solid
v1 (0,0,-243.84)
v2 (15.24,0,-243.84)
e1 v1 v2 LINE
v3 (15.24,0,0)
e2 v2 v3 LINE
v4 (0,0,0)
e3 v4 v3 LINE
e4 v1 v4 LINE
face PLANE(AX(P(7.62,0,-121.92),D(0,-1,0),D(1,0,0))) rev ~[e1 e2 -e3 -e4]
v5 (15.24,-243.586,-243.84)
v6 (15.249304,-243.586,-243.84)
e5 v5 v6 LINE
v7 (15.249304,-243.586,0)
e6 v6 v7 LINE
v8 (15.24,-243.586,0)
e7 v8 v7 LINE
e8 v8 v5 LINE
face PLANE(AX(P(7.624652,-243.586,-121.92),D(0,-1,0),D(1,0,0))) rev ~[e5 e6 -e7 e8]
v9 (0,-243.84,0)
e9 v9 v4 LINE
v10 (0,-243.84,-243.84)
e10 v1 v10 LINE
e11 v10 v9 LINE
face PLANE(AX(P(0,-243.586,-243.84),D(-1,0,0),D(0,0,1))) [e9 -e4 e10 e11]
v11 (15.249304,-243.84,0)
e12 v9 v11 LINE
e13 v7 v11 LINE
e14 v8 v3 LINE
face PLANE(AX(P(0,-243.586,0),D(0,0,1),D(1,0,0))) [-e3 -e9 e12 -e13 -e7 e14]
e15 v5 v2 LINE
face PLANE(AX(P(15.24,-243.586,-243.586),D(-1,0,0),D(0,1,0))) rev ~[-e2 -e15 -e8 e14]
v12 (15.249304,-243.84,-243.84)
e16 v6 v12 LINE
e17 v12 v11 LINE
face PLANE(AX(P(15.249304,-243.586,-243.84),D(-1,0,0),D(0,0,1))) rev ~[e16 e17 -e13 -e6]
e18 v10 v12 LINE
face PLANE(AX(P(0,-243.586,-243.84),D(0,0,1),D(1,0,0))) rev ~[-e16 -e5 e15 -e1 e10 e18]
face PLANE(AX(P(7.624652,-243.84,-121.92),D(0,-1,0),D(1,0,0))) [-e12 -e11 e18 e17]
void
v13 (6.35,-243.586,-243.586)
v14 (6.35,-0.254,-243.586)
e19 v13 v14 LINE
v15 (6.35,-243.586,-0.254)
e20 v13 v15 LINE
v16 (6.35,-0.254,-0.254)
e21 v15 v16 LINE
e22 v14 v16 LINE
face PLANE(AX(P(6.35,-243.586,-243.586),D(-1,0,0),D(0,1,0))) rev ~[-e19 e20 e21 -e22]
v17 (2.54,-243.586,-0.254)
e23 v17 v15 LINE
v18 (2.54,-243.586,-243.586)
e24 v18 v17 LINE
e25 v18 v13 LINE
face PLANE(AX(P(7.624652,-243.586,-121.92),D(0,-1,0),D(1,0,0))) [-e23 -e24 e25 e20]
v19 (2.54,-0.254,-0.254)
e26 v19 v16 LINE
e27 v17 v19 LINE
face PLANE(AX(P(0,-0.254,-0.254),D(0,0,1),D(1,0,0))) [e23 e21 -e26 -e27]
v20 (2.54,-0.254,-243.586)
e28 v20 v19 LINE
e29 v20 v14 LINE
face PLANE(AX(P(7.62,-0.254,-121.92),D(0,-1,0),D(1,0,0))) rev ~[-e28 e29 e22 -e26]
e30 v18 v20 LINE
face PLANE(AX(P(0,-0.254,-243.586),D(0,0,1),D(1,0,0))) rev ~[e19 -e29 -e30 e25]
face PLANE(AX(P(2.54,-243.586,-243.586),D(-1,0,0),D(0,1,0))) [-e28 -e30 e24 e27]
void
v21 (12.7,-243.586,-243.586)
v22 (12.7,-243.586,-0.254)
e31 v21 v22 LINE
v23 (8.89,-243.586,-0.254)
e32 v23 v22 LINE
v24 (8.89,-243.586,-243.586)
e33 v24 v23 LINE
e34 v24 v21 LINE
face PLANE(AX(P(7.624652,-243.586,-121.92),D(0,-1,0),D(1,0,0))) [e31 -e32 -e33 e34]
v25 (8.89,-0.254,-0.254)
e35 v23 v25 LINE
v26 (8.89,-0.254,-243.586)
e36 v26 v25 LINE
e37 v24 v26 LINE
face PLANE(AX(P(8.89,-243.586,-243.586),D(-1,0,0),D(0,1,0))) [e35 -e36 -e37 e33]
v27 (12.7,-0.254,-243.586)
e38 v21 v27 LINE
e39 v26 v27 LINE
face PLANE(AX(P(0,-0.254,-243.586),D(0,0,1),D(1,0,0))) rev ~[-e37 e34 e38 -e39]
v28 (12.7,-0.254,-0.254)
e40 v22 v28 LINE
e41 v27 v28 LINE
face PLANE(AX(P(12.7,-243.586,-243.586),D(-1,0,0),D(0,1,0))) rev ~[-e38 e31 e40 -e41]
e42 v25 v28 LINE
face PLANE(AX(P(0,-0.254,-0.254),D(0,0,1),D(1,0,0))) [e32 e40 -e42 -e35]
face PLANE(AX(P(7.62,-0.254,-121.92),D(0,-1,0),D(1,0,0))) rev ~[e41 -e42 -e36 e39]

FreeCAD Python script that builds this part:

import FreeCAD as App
import Part
import Sketcher
Q = App.Units.Quantity

doc = App.newDocument("Part")
body = doc.addObject("PartDesign::Body", "Body")

sketch1 = body.newObject("Sketcher::SketchObject", "Sketch")
sketch1.AttachmentSupport = (doc.getObject("XZ_Plane"), [""])
sketch1.MapMode = "FlatFace"
sketch1.addGeometry([
    Part.LineSegment(App.Vector(0, 0, 0), App.Vector(0, -244, 0)),
    Part.LineSegment(App.Vector(0, -244, 0), App.Vector(15, -244, 0)),
    Part.LineSegment(App.Vector(15, -244, 0), App.Vector(15, 0, 0)),
    Part.LineSegment(App.Vector(15, 0, 0), App.Vector(0, 0, 0)),
], False)
sketch1.addConstraint([
    Sketcher.Constraint("Coincident", 0, 2, 1, 1),
    Sketcher.Constraint("Coincident", 1, 2, 2, 1),
    Sketcher.Constraint("Coincident", 2, 2, 3, 1),
    Sketcher.Constraint("Coincident", 3, 2, 0, 1),
    Sketcher.Constraint("Vertical", 0),
    Sketcher.Constraint("Horizontal", 1),
    Sketcher.Constraint("Vertical", 2),
    Sketcher.Constraint("Horizontal", 3),
    Sketcher.Constraint("Coincident", 3, 2, -1, 1),
    Sketcher.Constraint("DistanceX", 1, 1, 1, 2, Q("0.6 in")),
    Sketcher.Constraint("DistanceY", 0, 2, 0, 1, Q("9.6 in")),
])
pad1 = body.newObject("PartDesign::Pad", "Pad")
pad1.Profile = sketch1
pad1.Length = Q("0.01 in")

sketch2 = body.newObject("Sketcher::SketchObject", "Sketch001")
sketch2.AttachmentSupport = (doc.getObject("XZ_Plane"), [""])
sketch2.MapMode = "FlatFace"
sketch2.AttachmentOffset = App.Placement(App.Vector(0, 0, 0.01 * 25.4), App.Rotation())
sketch2.addGeometry([
    Part.LineSegment(App.Vector(0, 0, 0), App.Vector(0, -0.25, 0)),
    Part.LineSegment(App.Vector(0, -0.25, 0), App.Vector(15.24, -0.25, 0)),
    Part.LineSegment(App.Vector(15.24, -0.25, 0), App.Vector(15.24, 0, 0)),
    Part.LineSegment(App.Vector(15.24, 0, 0), App.Vector(0, 0, 0)),
    Part.LineSegment(App.Vector(0, -243.59, 0), App.Vector(0, -243.84, 0)),
    Part.LineSegment(App.Vector(0, -243.84, 0), App.Vector(15.24, -243.84, 0)),
    Part.LineSegment(App.Vector(15.24, -243.84, 0), App.Vector(15.24, -243.59, 0)),
    Part.LineSegment(App.Vector(15.24, -243.59, 0), App.Vector(0, -243.59, 0)),
], False)
sketch2.addConstraint([
    Sketcher.Constraint("Coincident", 0, 2, 1, 1),
    Sketcher.Constraint("Coincident", 1, 2, 2, 1),
    Sketcher.Constraint("Coincident", 2, 2, 3, 1),
    Sketcher.Constraint("Coincident", 3, 2, 0, 1),
    Sketcher.Constraint("Coincident", 4, 2, 5, 1),
    Sketcher.Constraint("Coincident", 5, 2, 6, 1),
    Sketcher.Constraint("Coincident", 6, 2, 7, 1),
    Sketcher.Constraint("Coincident", 7, 2, 4, 1),
    Sketcher.Constraint("Vertical", 0),
    Sketcher.Constraint("Horizontal", 1),
    Sketcher.Constraint("Vertical", 2),
    Sketcher.Constraint("Horizontal", 3),
    Sketcher.Constraint("Vertical", 4),
    Sketcher.Constraint("Horizontal", 5),
    Sketcher.Constraint("Vertical", 6),
    Sketcher.Constraint("Horizontal", 7),
    Sketcher.Constraint("Coincident", 3, 2, -1, 1),
    Sketcher.Constraint("PointOnObject", 4, 2, -2),
    Sketcher.Constraint("Vertical", 2, 2, 5, 2),
    Sketcher.Constraint("Equal", 2, 4),
    Sketcher.Constraint("DistanceX", 1, 1, 1, 2, Q("0.6 in")),
    Sketcher.Constraint("DistanceY", 0, 2, 0, 1, Q("0.01 in")),
    Sketcher.Constraint("DistanceY", 4, 2, -1, 1, Q("9.6 in")),
])
pad2 = body.newObject("PartDesign::Pad", "Pad001")
pad2.Profile = sketch2
pad2.Length = Q("9.58 in")

sketch3 = body.newObject("Sketcher::SketchObject", "Sketch002")
sketch3.AttachmentSupport = (doc.getObject("XZ_Plane"), [""])
sketch3.MapMode = "FlatFace"
sketch3.AttachmentOffset = App.Placement(App.Vector(0, 0, 9.59 * 25.4), App.Rotation())
sketch3.addGeometry([
    Part.LineSegment(App.Vector(0, 0, 0), App.Vector(0, -244, 0)),
    Part.LineSegment(App.Vector(0, -244, 0), App.Vector(15, -244, 0)),
    Part.LineSegment(App.Vector(15, -244, 0), App.Vector(15, 0, 0)),
    Part.LineSegment(App.Vector(15, 0, 0), App.Vector(0, 0, 0)),
], False)
sketch3.addConstraint([
    Sketcher.Constraint("Coincident", 0, 2, 1, 1),
    Sketcher.Constraint("Coincident", 1, 2, 2, 1),
    Sketcher.Constraint("Coincident", 2, 2, 3, 1),
    Sketcher.Constraint("Coincident", 3, 2, 0, 1),
    Sketcher.Constraint("Vertical", 0),
    Sketcher.Constraint("Horizontal", 1),
    Sketcher.Constraint("Vertical", 2),
    Sketcher.Constraint("Horizontal", 3),
    Sketcher.Constraint("Coincident", 3, 2, -1, 1),
    Sketcher.Constraint("DistanceY", 0, 2, 0, 1, Q("9.6 in")),
    Sketcher.Constraint("DistanceX", 1, 1, 1, 2, 15.249304),
])
pad3 = body.newObject("PartDesign::Pad", "Pad002")
pad3.Profile = sketch3
pad3.Length = Q("0.01 in")

sketch4 = body.newObject("Sketcher::SketchObject", "Sketch003")
sketch4.AttachmentSupport = (doc.getObject("XY_Plane"), [""])
sketch4.MapMode = "FlatFace"
sketch4.AttachmentOffset = App.Placement(App.Vector(0, 0, -9.59 * 25.4), App.Rotation())
sketch4.addGeometry([
    Part.LineSegment(App.Vector(12.7, -0.3, 0), App.Vector(12.7, -243.6, 0)),
    Part.LineSegment(App.Vector(12.7, -243.6, 0), App.Vector(15.2, -243.6, 0)),
    Part.LineSegment(App.Vector(15.2, -243.6, 0), App.Vector(15.2, -0.3, 0)),
    Part.LineSegment(App.Vector(15.2, -0.3, 0), App.Vector(12.7, -0.3, 0)),
    Part.LineSegment(App.Vector(6.3, -0.3, 0), App.Vector(6.3, -243.6, 0)),
    Part.LineSegment(App.Vector(6.3, -243.6, 0), App.Vector(8.9, -243.6, 0)),
    Part.LineSegment(App.Vector(8.9, -243.6, 0), App.Vector(8.9, -0.3, 0)),
    Part.LineSegment(App.Vector(8.9, -0.3, 0), App.Vector(6.3, -0.3, 0)),
    Part.LineSegment(App.Vector(0, -0.3, 0), App.Vector(0, -243.6, 0)),
    Part.LineSegment(App.Vector(0, -243.6, 0), App.Vector(2.5, -243.6, 0)),
    Part.LineSegment(App.Vector(2.5, -243.6, 0), App.Vector(2.5, -0.3, 0)),
    Part.LineSegment(App.Vector(2.5, -0.3, 0), App.Vector(0, -0.3, 0)),
], False)
sketch4.addConstraint([
    Sketcher.Constraint("Coincident", 0, 2, 1, 1),
    Sketcher.Constraint("Coincident", 1, 2, 2, 1),
    Sketcher.Constraint("Coincident", 2, 2, 3, 1),
    Sketcher.Constraint("Coincident", 3, 2, 0, 1),
    Sketcher.Constraint("Coincident", 4, 2, 5, 1),
    Sketcher.Constraint("Coincident", 5, 2, 6, 1),
    Sketcher.Constraint("Coincident", 6, 2, 7, 1),
    Sketcher.Constraint("Coincident", 7, 2, 4, 1),
    Sketcher.Constraint("Coincident", 8, 2, 9, 1),
    Sketcher.Constraint("Coincident", 9, 2, 10, 1),
    Sketcher.Constraint("Coincident", 10, 2, 11, 1),
    Sketcher.Constraint("Coincident", 11, 2, 8, 1),
    Sketcher.Constraint("Vertical", 0),
    Sketcher.Constraint("Horizontal", 1),
    Sketcher.Constraint("Vertical", 2),
    Sketcher.Constraint("Horizontal", 3),
    Sketcher.Constraint("Vertical", 4),
    Sketcher.Constraint("Horizontal", 5),
    Sketcher.Constraint("Vertical", 6),
    Sketcher.Constraint("Horizontal", 7),
    Sketcher.Constraint("Vertical", 8),
    Sketcher.Constraint("Horizontal", 9),
    Sketcher.Constraint("Vertical", 10),
    Sketcher.Constraint("Horizontal", 11),
    Sketcher.Constraint("PointOnObject", 8, 2, -2),
    Sketcher.Constraint("Horizontal", 1, 2, 4, 2),
    Sketcher.Constraint("Horizontal", 3, 2, 6, 2),
    Sketcher.Constraint("Horizontal", 5, 2, 8, 2),
    Sketcher.Constraint("Horizontal", 7, 2, 10, 2),
    Sketcher.Constraint("Equal", 3, 5),
    Sketcher.Constraint("Equal", 7, 9),
    Sketcher.Constraint("DistanceX", 1, 1, 1, 2, Q("0.1 in")),
    Sketcher.Constraint("DistanceY", 0, 2, 0, 1, Q("9.58 in")),
    Sketcher.Constraint("DistanceX", -1, 1, 0, 2, Q("0.5 in")),
    Sketcher.Constraint("DistanceY", 0, 2, -1, 1, Q("9.59 in")),
    Sketcher.Constraint("DistanceX", -1, 1, 4, 2, Q("0.25 in")),
])
pad4 = body.newObject("PartDesign::Pad", "Pad003")
pad4.Profile = sketch4
pad4.Length = Q("9.58 in")

doc.recompute()
